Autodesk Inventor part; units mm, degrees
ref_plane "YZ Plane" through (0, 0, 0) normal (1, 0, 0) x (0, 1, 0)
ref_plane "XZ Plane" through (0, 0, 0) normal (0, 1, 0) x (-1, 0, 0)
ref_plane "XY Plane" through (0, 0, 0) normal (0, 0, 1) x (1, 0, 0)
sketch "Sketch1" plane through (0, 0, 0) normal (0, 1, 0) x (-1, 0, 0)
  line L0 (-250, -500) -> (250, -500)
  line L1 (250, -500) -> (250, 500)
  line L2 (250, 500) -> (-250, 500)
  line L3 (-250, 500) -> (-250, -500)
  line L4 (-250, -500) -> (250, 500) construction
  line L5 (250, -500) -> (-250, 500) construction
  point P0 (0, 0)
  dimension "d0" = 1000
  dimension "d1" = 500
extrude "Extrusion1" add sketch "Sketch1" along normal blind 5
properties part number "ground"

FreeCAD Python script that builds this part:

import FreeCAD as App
import Part
import Sketcher
from FreeCAD import Vector
Q = App.Units.Quantity

doc = App.newDocument("Part")
body = doc.addObject("PartDesign::Body", "Body")

sketch1 = body.newObject("Sketcher::SketchObject", "Sketch")
sketch1.AttachmentSupport = (doc.getObject("XZ_Plane"), [""])
sketch1.MapMode = "FlatFace"
sketch1.addGeometry(Part.LineSegment(Vector(250, 500, 0), Vector(250, -500, 0)), False)
sketch1.addGeometry(Part.LineSegment(Vector(250, -500, 0), Vector(-250, -500, 0)), False)
sketch1.addGeometry(Part.LineSegment(Vector(-250, -500, 0), Vector(-250, 500, 0)), False)
sketch1.addGeometry(Part.LineSegment(Vector(-250, 500, 0), Vector(250, 500, 0)), False)
sketch1.addConstraint(Sketcher.Constraint("Coincident", 0, 2, 1, 1))
sketch1.addConstraint(Sketcher.Constraint("Coincident", 1, 2, 2, 1))
sketch1.addConstraint(Sketcher.Constraint("Coincident", 2, 2, 3, 1))
sketch1.addConstraint(Sketcher.Constraint("Coincident", 3, 2, 0, 1))
sketch1.addConstraint(Sketcher.Constraint("Vertical", 0))
sketch1.addConstraint(Sketcher.Constraint("Horizontal", 1))
sketch1.addConstraint(Sketcher.Constraint("Vertical", 2))
sketch1.addConstraint(Sketcher.Constraint("Horizontal", 3))
sketch1.addConstraint(Sketcher.Constraint("Symmetric", 0, 2, 2, 2, -1, 1))
sketch1.addConstraint(Sketcher.Constraint("DistanceX", 1, 2, 1, 1, Q("500 mm")))
sketch1.addConstraint(Sketcher.Constraint("DistanceY", 0, 2, 0, 1, Q("1000 mm")))
pad1 = body.newObject("PartDesign::Pad", "Pad")
pad1.Profile = sketch1
pad1.Length = 5
pad1.Reversed = True

doc.recompute()
